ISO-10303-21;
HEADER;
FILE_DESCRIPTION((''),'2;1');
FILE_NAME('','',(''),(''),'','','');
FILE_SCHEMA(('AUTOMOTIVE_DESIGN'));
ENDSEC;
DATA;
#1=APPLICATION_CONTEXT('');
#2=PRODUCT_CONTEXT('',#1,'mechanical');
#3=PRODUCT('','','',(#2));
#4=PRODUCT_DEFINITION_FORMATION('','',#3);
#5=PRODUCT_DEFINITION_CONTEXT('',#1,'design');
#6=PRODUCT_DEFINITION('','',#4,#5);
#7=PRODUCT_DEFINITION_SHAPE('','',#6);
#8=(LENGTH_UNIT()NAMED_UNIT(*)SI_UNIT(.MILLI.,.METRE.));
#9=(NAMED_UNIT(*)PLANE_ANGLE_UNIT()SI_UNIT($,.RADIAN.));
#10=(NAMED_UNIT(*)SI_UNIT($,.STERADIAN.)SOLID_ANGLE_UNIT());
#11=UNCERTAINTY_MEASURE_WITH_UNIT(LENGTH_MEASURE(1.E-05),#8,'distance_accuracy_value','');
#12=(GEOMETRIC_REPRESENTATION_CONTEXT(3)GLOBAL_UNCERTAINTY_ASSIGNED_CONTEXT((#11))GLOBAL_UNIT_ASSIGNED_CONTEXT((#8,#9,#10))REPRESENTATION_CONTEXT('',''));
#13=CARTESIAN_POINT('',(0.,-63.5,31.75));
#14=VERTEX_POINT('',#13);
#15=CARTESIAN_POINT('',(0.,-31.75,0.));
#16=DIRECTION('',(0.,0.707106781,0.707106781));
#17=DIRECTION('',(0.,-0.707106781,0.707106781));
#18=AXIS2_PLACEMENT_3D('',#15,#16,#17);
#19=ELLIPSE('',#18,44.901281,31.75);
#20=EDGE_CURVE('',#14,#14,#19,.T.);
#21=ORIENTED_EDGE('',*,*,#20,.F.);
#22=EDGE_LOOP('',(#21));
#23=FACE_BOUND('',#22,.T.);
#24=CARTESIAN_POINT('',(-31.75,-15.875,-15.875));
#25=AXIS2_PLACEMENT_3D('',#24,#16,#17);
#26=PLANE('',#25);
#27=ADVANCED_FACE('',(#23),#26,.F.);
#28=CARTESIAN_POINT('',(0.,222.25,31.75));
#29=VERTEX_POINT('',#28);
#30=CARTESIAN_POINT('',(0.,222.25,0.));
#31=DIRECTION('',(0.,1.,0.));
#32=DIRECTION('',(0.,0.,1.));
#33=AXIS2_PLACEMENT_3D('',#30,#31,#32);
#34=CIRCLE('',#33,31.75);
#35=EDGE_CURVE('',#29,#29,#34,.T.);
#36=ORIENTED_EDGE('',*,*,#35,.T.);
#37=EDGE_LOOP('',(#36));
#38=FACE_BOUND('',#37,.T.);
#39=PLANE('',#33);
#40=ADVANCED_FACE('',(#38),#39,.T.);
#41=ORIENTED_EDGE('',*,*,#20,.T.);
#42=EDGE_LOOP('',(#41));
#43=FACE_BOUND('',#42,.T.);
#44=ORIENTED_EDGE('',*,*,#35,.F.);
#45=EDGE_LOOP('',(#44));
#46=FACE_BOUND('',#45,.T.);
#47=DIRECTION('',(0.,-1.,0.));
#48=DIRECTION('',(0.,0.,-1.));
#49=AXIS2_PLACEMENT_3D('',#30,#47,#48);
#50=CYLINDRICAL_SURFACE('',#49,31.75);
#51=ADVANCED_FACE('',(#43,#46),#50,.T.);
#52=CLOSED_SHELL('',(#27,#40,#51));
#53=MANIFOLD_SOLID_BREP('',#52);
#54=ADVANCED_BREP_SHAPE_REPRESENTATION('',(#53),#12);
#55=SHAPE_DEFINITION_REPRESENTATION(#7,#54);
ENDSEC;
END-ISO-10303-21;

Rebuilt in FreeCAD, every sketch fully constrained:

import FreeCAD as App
import Part
import Sketcher

V = App.Vector
Q = App.Units.Quantity


def add_polygon(sketch, points):
    """Adds a closed chain of lines whose ends are joined by coincident constraints."""
    first, n = sketch.GeometryCount, len(points)
    for a, b in zip(points, points[1:] + points[:1]):
        sketch.addGeometry(Part.LineSegment(App.Vector(*a, 0), App.Vector(*b, 0)), False)
    for i in range(n):
        sketch.addConstraint(Sketcher.Constraint("Coincident", first + i, 2, first + (i + 1) % n, 1))

doc = App.newDocument("Part")
body = doc.addObject("PartDesign::Body", "Body")

sketch1 = body.newObject("Sketcher::SketchObject", "Sketch")
sketch1.AttachmentSupport = (doc.getObject("XZ_Plane"), [""])
sketch1.MapMode = "FlatFace"
sketch1.addGeometry(Part.Circle(V(0, 0, 0), V(0, 0, 1), 32), False)
sketch1.addConstraint(Sketcher.Constraint("Coincident", 0, 3, -1, 1))
sketch1.addConstraint(Sketcher.Constraint("Diameter", 0, Q("2.5 in")))
pad1 = body.newObject("PartDesign::Pad", "Pad")
pad1.Profile = sketch1
pad1.Length = Q("8.75 in")
pad1.Reversed = True

sketch2 = body.newObject("Sketcher::SketchObject", "Sketch001")
sketch2.AttachmentSupport = (doc.getObject("XZ_Plane"), [""])
sketch2.MapMode = "FlatFace"
sketch2.addGeometry(Part.Circle(V(0, 0, 0), V(0, 0, 1), 32), False)
sketch2.addConstraint(Sketcher.Constraint("Coincident", 0, 3, -1, 1))
sketch2.addConstraint(Sketcher.Constraint("Diameter", 0, Q("2.5 in")))
pad2 = body.newObject("PartDesign::Pad", "Pad001")
pad2.Profile = sketch2
pad2.Length = Q("2.5 in")

sketch3 = body.newObject("Sketcher::SketchObject", "Sketch002")
sketch3.AttachmentSupport = (doc.getObject("YZ_Plane"), [""])
sketch3.MapMode = "FlatFace"
sketch3.AttachmentOffset = App.Placement(V(0, 0, 1.25 * 25.4), App.Rotation())
add_polygon(sketch3, [(-64, -32), (0, -32), (-64, 32)])
sketch3.addConstraint(Sketcher.Constraint("Horizontal", 0))
sketch3.addConstraint(Sketcher.Constraint("Vertical", 2))
sketch3.addConstraint(Sketcher.Constraint("PointOnObject", 0, 2, -2))
sketch3.addConstraint(Sketcher.Constraint("Equal", 0, 2))
sketch3.addConstraint(Sketcher.Constraint("DistanceX", 0, 1, 0, 2, Q("2.5 in")))
sketch3.addConstraint(Sketcher.Constraint("DistanceY", 0, 2, -1, 1, Q("1.25 in")))
pocket1 = body.newObject("PartDesign::Pocket", "Pocket")
pocket1.Profile = sketch3
pocket1.Length = Q("2.5 in")

doc.recompute()
